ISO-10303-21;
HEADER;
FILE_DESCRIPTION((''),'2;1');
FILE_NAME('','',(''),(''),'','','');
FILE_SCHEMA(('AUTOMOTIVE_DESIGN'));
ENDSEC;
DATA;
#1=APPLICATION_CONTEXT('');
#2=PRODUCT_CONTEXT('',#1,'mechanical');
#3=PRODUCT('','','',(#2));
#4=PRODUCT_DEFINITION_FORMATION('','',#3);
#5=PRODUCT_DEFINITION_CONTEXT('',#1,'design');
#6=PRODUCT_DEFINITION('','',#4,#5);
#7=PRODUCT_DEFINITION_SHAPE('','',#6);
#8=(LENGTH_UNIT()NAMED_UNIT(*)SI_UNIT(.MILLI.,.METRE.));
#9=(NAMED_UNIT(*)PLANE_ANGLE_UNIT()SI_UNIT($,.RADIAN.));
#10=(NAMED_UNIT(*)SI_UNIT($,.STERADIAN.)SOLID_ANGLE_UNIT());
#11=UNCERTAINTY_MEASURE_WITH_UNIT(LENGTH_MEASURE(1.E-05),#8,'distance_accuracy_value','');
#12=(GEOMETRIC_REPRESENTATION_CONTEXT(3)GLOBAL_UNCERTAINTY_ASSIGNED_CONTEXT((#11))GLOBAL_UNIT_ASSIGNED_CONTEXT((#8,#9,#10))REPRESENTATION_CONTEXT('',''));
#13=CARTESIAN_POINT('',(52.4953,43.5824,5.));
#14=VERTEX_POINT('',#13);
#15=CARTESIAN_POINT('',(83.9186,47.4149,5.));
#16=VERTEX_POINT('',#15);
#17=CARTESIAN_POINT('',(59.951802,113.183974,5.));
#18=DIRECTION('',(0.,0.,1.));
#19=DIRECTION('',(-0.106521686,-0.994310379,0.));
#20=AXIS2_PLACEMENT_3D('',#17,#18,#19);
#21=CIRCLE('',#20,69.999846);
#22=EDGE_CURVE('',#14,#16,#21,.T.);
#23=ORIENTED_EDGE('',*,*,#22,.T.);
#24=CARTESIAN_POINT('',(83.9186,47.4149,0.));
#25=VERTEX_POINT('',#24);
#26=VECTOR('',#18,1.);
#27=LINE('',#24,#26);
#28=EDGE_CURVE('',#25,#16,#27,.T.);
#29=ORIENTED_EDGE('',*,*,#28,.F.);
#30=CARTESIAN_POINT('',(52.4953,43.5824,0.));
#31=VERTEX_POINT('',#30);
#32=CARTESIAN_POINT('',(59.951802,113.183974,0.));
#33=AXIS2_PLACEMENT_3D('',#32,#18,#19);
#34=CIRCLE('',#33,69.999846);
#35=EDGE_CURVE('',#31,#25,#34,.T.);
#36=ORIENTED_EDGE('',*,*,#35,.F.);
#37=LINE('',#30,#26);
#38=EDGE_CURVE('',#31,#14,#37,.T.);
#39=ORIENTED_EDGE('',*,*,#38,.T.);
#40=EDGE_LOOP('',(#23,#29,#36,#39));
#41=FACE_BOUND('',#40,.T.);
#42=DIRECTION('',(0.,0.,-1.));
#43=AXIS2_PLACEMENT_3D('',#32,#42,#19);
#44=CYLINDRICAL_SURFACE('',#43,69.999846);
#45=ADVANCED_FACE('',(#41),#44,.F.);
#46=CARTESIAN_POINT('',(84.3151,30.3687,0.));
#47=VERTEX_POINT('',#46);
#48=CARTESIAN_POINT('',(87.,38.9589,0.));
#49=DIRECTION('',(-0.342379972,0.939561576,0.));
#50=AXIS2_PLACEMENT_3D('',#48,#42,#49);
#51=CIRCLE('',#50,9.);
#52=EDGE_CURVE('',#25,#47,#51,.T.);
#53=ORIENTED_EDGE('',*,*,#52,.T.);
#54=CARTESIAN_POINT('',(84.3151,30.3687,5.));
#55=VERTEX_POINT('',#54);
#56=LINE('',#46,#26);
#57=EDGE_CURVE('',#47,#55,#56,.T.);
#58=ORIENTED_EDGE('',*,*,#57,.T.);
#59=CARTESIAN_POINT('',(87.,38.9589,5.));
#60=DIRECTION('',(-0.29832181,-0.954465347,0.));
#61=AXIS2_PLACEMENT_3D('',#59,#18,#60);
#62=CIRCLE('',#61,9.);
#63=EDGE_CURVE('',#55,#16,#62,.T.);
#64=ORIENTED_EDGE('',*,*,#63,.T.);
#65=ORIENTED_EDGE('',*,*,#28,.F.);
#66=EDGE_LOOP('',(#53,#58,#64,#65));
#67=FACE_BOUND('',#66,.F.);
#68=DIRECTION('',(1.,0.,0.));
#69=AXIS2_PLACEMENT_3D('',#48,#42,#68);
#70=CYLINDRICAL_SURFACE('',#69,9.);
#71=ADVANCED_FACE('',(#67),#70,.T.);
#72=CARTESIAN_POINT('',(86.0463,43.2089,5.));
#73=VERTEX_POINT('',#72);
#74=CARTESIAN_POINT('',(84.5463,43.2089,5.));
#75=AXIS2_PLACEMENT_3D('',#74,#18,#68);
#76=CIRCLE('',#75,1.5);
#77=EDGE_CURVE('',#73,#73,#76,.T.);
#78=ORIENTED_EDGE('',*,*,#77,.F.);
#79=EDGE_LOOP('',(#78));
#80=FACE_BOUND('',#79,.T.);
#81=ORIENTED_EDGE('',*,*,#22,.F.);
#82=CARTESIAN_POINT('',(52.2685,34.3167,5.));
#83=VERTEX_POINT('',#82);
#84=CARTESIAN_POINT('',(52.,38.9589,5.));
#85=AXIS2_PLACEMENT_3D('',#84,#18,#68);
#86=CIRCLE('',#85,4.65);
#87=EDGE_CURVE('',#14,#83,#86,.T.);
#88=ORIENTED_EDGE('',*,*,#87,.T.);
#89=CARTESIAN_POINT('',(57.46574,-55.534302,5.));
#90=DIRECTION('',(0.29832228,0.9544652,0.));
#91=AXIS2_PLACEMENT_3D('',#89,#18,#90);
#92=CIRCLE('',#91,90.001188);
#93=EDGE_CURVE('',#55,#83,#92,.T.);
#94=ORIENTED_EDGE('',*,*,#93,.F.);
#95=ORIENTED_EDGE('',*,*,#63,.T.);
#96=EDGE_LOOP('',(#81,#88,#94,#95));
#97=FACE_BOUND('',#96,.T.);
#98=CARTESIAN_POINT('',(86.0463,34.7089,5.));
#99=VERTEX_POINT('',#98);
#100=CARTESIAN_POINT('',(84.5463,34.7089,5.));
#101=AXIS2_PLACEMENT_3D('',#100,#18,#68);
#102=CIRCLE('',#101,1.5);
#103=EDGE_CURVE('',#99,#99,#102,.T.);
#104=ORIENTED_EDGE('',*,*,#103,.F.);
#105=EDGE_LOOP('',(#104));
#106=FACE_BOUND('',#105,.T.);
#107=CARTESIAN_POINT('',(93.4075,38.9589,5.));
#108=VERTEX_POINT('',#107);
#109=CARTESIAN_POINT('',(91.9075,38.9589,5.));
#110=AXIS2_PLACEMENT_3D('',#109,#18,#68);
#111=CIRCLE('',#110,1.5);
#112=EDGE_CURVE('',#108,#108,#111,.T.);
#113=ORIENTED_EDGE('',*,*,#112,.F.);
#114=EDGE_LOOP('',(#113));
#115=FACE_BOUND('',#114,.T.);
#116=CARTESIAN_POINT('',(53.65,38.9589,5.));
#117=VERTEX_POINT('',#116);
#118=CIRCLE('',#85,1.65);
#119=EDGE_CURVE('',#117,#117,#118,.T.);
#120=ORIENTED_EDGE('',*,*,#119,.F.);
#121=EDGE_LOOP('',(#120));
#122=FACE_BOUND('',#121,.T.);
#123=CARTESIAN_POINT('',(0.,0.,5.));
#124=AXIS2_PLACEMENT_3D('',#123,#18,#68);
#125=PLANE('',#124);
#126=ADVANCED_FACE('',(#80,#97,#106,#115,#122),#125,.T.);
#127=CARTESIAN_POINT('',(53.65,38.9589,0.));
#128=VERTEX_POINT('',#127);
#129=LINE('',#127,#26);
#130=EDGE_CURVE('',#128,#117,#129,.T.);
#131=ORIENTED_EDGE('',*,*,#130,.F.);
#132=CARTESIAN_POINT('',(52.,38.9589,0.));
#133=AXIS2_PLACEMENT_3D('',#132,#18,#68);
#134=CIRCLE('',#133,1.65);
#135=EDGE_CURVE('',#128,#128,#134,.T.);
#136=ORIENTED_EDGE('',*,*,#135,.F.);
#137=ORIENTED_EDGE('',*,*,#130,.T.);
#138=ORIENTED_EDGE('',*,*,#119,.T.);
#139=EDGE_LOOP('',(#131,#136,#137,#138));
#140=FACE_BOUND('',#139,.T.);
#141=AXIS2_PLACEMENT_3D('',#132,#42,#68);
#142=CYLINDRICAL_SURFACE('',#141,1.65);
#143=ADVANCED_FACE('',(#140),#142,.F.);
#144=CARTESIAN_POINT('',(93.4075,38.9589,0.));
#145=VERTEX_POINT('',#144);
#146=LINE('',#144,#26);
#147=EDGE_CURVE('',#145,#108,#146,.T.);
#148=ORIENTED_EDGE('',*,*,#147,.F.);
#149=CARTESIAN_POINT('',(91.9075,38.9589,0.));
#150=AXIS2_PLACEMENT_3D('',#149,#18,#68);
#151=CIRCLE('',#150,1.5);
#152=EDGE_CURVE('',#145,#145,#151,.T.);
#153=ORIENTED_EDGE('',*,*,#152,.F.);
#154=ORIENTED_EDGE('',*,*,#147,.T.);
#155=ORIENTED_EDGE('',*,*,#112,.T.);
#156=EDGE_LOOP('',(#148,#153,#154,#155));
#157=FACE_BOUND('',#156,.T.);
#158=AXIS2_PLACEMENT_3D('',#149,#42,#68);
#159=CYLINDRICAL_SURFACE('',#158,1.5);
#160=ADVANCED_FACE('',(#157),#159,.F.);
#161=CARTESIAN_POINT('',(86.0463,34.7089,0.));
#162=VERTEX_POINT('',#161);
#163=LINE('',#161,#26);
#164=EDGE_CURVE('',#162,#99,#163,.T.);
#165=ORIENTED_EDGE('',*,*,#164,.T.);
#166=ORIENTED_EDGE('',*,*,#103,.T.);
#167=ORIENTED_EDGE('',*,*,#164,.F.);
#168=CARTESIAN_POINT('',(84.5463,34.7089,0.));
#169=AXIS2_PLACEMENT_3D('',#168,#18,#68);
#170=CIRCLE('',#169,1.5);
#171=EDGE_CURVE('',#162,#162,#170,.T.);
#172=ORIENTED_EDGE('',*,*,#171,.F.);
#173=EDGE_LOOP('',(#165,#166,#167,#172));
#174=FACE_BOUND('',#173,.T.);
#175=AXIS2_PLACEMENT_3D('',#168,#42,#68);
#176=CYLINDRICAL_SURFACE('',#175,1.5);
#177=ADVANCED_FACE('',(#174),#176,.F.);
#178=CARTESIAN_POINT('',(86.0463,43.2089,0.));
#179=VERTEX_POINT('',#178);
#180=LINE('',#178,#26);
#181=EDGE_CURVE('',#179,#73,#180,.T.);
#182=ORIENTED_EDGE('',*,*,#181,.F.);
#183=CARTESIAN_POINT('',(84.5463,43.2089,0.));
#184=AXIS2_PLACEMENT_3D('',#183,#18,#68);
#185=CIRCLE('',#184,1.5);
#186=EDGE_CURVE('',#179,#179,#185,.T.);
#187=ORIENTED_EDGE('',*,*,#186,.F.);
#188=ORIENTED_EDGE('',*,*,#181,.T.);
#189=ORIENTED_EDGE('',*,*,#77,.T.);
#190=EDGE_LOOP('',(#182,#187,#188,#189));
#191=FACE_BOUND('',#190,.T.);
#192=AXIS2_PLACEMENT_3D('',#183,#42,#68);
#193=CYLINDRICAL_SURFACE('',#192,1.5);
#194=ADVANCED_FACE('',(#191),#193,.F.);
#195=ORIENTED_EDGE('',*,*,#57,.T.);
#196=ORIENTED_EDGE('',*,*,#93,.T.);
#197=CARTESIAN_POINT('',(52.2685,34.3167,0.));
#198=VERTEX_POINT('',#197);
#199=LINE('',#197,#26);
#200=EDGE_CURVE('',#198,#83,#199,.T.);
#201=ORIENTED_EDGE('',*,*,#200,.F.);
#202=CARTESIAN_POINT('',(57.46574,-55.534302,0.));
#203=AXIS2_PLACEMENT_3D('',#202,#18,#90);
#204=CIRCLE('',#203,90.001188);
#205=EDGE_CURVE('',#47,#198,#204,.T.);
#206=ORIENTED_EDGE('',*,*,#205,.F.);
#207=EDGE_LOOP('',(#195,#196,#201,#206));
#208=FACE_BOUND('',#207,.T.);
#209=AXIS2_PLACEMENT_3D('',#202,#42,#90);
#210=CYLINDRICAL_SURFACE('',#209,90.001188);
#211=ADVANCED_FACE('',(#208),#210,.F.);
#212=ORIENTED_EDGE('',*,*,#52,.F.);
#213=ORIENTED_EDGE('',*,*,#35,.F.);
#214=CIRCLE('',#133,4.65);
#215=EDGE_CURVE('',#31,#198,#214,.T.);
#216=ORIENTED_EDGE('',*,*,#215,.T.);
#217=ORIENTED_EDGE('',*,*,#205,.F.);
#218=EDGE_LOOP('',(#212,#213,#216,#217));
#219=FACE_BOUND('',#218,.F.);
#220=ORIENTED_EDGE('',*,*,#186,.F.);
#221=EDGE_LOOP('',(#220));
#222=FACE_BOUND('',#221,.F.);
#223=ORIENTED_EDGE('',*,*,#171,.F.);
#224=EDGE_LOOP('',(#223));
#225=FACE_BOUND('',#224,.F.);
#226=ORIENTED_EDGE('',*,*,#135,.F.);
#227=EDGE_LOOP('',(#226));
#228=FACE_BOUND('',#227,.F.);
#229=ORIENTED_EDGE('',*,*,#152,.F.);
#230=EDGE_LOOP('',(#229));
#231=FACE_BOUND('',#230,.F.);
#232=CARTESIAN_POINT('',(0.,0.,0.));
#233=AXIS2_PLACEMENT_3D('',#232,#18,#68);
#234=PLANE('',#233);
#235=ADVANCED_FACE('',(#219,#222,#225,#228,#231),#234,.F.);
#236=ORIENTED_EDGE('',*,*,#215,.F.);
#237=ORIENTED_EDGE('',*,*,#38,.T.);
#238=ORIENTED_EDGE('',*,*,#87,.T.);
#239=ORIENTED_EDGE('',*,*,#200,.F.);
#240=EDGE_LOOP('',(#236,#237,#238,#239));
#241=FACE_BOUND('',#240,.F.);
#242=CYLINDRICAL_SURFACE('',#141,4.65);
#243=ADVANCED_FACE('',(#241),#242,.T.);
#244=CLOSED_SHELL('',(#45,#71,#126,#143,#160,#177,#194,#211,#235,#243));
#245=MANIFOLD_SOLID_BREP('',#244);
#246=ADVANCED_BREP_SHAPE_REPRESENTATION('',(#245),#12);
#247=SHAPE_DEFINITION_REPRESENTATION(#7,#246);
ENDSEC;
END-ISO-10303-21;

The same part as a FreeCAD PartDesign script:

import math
import FreeCAD as App
import Part
import Sketcher

V = App.Vector

doc = App.newDocument("Part")
body = doc.addObject("PartDesign::Body", "Body")

sketch1 = body.newObject("Sketcher::SketchObject", "Sketch")
sketch1.AttachmentSupport = (doc.getObject("XY_Plane"), [""])
sketch1.MapMode = "FlatFace"
sketch1.addGeometry([
    Part.ArcOfCircle(Part.Circle(V(52, 39, 0), V(0, 0, 1), 4.7), math.radians(84), math.radians(273)),
    Part.ArcOfCircle(Part.Circle(V(57.5, -55.5, 0), V(0, 0, 1), 90), math.radians(73), math.radians(93)),
    Part.ArcOfCircle(Part.Circle(V(87, 39, 0), V(0, 0, 1), 9), math.radians(-107), math.radians(110)),
    Part.ArcOfCircle(Part.Circle(V(60, 113.2, 0), V(0, 0, 1), 70), math.radians(-96), math.radians(-70)),
    Part.Circle(V(52, 39, 0), V(0, 0, 1), 1.6),
    Part.Circle(V(91.9, 39, 0), V(0, 0, 1), 1.5),
    Part.Circle(V(84.5, 43.2, 0), V(0, 0, 1), 1.5),
    Part.Circle(V(84.5, 34.7, 0), V(0, 0, 1), 1.5),
], False)
sketch1.addConstraint([
    Sketcher.Constraint("Tangent", 0, 2, 1, 2),
    Sketcher.Constraint("Tangent", 1, 1, 2, 1),
    Sketcher.Constraint("Tangent", 2, 2, 3, 2),
    Sketcher.Constraint("Tangent", 3, 1, 0, 1),
    Sketcher.Constraint("Coincident", 4, 3, 0, 3),
    Sketcher.Constraint("Equal", 5, 6),
    Sketcher.Constraint("Equal", 6, 7),
    Sketcher.Constraint("Horizontal", 0, 3, 2, 3),
    Sketcher.Constraint("Horizontal", 4, 3, 5, 3),
    Sketcher.Constraint("Vertical", 6, 3, 7, 3),
    Sketcher.Constraint("Diameter", 5, 3.0),
    Sketcher.Constraint("Radius", 2, 9.0),
    Sketcher.Constraint("Radius", 3, 70.0),
    Sketcher.Constraint("Diameter", 4, 3.3),
    Sketcher.Constraint("DistanceX", 0, 3, 2, 3, 35.0),
    Sketcher.Constraint("Radius", 0, 4.65),
    Sketcher.Constraint("DistanceX", -1, 1, 0, 3, 52.0),
    Sketcher.Constraint("Radius", 1, 90.0012),
    Sketcher.Constraint("DistanceY", 7, 3, 6, 3, 8.5),
    Sketcher.Constraint("DistanceY", 2, 3, 6, 3, 4.25),
    Sketcher.Constraint("DistanceY", -1, 1, 0, 3, 38.959),
    Sketcher.Constraint("DistanceX", 2, 2, 5, 3, 7.989),
    Sketcher.Constraint("DistanceX", 3, 1, 6, 3, 32.051),
])
pad1 = body.newObject("PartDesign::Pad", "Pad")
pad1.Profile = sketch1
pad1.Length = 5

doc.recompute()
